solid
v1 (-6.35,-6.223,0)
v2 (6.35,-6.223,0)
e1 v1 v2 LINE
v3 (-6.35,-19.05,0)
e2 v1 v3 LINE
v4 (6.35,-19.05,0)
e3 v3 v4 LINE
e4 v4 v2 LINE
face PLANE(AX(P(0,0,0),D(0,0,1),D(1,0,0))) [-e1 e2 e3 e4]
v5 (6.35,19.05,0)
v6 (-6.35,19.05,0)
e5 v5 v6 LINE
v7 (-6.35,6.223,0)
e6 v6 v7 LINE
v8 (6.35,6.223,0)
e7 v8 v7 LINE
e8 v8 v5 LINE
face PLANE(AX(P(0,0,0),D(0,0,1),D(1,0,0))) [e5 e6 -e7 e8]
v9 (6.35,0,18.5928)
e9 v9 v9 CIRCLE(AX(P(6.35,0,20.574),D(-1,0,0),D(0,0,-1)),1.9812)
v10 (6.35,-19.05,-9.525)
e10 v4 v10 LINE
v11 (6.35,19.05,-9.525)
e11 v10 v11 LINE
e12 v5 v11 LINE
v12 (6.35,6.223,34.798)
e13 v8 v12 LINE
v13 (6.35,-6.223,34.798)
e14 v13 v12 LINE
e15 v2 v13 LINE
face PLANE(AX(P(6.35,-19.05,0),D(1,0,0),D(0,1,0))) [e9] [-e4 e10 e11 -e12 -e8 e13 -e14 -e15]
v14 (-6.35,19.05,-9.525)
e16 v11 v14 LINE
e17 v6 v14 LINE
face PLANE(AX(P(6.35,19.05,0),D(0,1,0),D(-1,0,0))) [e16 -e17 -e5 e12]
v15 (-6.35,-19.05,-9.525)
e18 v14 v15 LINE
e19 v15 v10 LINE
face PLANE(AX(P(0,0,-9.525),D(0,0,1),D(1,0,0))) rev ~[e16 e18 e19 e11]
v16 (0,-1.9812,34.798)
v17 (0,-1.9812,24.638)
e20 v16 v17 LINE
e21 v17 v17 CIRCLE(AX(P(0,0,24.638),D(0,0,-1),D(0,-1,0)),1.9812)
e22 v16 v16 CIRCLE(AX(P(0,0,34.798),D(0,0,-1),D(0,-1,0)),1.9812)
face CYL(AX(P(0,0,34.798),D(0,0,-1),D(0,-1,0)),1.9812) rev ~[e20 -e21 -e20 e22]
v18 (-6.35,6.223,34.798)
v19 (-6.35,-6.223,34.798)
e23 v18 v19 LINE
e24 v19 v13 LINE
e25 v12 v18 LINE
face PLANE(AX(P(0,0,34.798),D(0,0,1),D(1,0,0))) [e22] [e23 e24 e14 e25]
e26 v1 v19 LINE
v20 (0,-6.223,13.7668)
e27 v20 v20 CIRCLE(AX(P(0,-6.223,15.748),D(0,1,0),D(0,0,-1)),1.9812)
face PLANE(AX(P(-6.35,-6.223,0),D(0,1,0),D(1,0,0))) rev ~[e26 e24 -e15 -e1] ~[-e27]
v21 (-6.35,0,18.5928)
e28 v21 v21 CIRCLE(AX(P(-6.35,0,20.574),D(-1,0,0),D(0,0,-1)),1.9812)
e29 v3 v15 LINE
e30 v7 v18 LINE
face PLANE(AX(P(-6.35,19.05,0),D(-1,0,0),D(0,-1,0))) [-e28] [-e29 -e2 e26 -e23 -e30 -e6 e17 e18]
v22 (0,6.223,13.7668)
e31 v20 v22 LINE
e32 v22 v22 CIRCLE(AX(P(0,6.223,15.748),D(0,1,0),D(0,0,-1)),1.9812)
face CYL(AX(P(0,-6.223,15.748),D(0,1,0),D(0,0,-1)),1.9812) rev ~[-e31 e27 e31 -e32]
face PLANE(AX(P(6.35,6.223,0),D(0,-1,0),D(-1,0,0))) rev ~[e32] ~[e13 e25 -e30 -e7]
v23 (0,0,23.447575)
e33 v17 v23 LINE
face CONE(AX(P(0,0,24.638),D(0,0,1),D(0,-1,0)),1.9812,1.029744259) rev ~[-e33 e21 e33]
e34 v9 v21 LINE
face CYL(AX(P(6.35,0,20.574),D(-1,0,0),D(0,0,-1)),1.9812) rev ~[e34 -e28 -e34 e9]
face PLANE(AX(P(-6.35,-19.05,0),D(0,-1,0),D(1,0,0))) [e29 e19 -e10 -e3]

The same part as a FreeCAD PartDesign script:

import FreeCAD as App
import Part
import Sketcher
Q = App.Units.Quantity


def add_polygon(sketch, points):
    """Adds a closed chain of lines whose ends are joined by coincident constraints."""
    first, n = sketch.GeometryCount, len(points)
    for a, b in zip(points, points[1:] + points[:1]):
        sketch.addGeometry(Part.LineSegment(App.Vector(*a, 0), App.Vector(*b, 0)), False)
    for i in range(n):
        sketch.addConstraint(Sketcher.Constraint("Coincident", first + i, 2, first + (i + 1) % n, 1))

doc = App.newDocument("Part")
body = doc.addObject("PartDesign::Body", "Body")

sketch1 = body.newObject("Sketcher::SketchObject", "Sketch")
sketch1.AttachmentSupport = (doc.getObject("XY_Plane"), [""])
sketch1.MapMode = "FlatFace"
add_polygon(sketch1, [(-6, 19), (-6, -19), (6, -19), (6, 19)])
sketch1.addConstraint(Sketcher.Constraint("Vertical", 0))
sketch1.addConstraint(Sketcher.Constraint("Horizontal", 1))
sketch1.addConstraint(Sketcher.Constraint("Vertical", 2))
sketch1.addConstraint(Sketcher.Constraint("Horizontal", 3))
sketch1.addConstraint(Sketcher.Constraint("Symmetric", 0, 2, 2, 2, -1, 1))
sketch1.addConstraint(Sketcher.Constraint("DistanceX", 1, 1, 1, 2, Q("0.5 in")))
sketch1.addConstraint(Sketcher.Constraint("DistanceY", 0, 2, 0, 1, Q("1.5 in")))
pad1 = body.newObject("PartDesign::Pad", "Pad")
pad1.Profile = sketch1
pad1.Length = Q("0.375 in")
pad1.Reversed = True

sketch2 = body.newObject("Sketcher::SketchObject", "Sketch001")
sketch2.AttachmentSupport = (doc.getObject("XY_Plane"), [""])
sketch2.MapMode = "FlatFace"
add_polygon(sketch2, [(-6, 6), (-6, -6), (6, -6), (6, 6)])
sketch2.addConstraint(Sketcher.Constraint("Vertical", 0))
sketch2.addConstraint(Sketcher.Constraint("Horizontal", 1))
sketch2.addConstraint(Sketcher.Constraint("Vertical", 2))
sketch2.addConstraint(Sketcher.Constraint("Horizontal", 3))
sketch2.addConstraint(Sketcher.Constraint("Symmetric", 0, 2, 2, 2, -1, 1))
sketch2.addConstraint(Sketcher.Constraint("DistanceY", 0, 2, 0, 1, Q("0.49 in")))
sketch2.addConstraint(Sketcher.Constraint("DistanceX", 1, 1, 1, 2, Q("0.5 in")))
pad2 = body.newObject("PartDesign::Pad", "Pad001")
pad2.Profile = sketch2
pad2.Length = Q("1.37 in")

sketch3 = body.newObject("Sketcher::SketchObject", "Sketch002")
sketch3.AttachmentSupport = (doc.getObject("YZ_Plane"), [""])
sketch3.MapMode = "FlatFace"
sketch3.AttachmentOffset = App.Placement(App.Vector(0, 0, 0.25 * 25.4), App.Rotation())
sketch3.addGeometry(Part.Circle(App.Vector(0, 20.6, 0), App.Vector(0, 0, 1), 2), False)
sketch3.addConstraint(Sketcher.Constraint("PointOnObject", 0, 3, -2))
sketch3.addConstraint(Sketcher.Constraint("Diameter", 0, Q("0.156 in")))
sketch3.addConstraint(Sketcher.Constraint("DistanceY", -1, 1, 0, 3, Q("0.81 in")))
doc.recompute()
hole = body.newObject("PartDesign::Hole", "Hole")
hole.Profile = sketch3
hole.ThreadType = "None"
hole.Diameter = Q("0.156 in")
hole.DepthType = "ThroughAll"

sketch4 = body.newObject("Sketcher::SketchObject", "Sketch003")
sketch4.AttachmentSupport = (doc.getObject("XY_Plane"), [""])
sketch4.MapMode = "FlatFace"
sketch4.AttachmentOffset = App.Placement(App.Vector(0, 0, 1.37 * 25.4), App.Rotation())
sketch4.addGeometry(Part.Circle(App.Vector(0, 0, 0), App.Vector(0, 0, 1), 2), False)
sketch4.addConstraint(Sketcher.Constraint("Coincident", 0, 3, -1, 1))
sketch4.addConstraint(Sketcher.Constraint("Diameter", 0, Q("0.156 in")))
doc.recompute()
hole2 = body.newObject("PartDesign::Hole", "Hole001")
hole2.Profile = sketch4
hole2.ThreadType = "None"
hole2.Diameter = Q("0.156 in")
hole2.DepthType = "Dimension"
hole2.Depth = Q("0.4 in")
hole2.DrillPoint = "Angled"
hole2.DrillPointAngle = 118

sketch5 = body.newObject("Sketcher::SketchObject", "Sketch004")
sketch5.AttachmentSupport = (doc.getObject("XZ_Plane"), [""])
sketch5.MapMode = "FlatFace"
sketch5.AttachmentOffset = App.Placement(App.Vector(0, 0, 0.245 * 25.4), App.Rotation())
sketch5.addGeometry(Part.Circle(App.Vector(0, 15.7, 0), App.Vector(0, 0, 1), 2), False)
sketch5.addConstraint(Sketcher.Constraint("PointOnObject", 0, 3, -2))
sketch5.addConstraint(Sketcher.Constraint("Diameter", 0, Q("0.156 in")))
sketch5.addConstraint(Sketcher.Constraint("DistanceY", -1, 1, 0, 3, Q("0.62 in")))
doc.recompute()
hole3 = body.newObject("PartDesign::Hole", "Hole002")
hole3.Profile = sketch5
hole3.ThreadType = "None"
hole3.Diameter = Q("0.156 in")
hole3.DepthType = "ThroughAll"

doc.recompute()
